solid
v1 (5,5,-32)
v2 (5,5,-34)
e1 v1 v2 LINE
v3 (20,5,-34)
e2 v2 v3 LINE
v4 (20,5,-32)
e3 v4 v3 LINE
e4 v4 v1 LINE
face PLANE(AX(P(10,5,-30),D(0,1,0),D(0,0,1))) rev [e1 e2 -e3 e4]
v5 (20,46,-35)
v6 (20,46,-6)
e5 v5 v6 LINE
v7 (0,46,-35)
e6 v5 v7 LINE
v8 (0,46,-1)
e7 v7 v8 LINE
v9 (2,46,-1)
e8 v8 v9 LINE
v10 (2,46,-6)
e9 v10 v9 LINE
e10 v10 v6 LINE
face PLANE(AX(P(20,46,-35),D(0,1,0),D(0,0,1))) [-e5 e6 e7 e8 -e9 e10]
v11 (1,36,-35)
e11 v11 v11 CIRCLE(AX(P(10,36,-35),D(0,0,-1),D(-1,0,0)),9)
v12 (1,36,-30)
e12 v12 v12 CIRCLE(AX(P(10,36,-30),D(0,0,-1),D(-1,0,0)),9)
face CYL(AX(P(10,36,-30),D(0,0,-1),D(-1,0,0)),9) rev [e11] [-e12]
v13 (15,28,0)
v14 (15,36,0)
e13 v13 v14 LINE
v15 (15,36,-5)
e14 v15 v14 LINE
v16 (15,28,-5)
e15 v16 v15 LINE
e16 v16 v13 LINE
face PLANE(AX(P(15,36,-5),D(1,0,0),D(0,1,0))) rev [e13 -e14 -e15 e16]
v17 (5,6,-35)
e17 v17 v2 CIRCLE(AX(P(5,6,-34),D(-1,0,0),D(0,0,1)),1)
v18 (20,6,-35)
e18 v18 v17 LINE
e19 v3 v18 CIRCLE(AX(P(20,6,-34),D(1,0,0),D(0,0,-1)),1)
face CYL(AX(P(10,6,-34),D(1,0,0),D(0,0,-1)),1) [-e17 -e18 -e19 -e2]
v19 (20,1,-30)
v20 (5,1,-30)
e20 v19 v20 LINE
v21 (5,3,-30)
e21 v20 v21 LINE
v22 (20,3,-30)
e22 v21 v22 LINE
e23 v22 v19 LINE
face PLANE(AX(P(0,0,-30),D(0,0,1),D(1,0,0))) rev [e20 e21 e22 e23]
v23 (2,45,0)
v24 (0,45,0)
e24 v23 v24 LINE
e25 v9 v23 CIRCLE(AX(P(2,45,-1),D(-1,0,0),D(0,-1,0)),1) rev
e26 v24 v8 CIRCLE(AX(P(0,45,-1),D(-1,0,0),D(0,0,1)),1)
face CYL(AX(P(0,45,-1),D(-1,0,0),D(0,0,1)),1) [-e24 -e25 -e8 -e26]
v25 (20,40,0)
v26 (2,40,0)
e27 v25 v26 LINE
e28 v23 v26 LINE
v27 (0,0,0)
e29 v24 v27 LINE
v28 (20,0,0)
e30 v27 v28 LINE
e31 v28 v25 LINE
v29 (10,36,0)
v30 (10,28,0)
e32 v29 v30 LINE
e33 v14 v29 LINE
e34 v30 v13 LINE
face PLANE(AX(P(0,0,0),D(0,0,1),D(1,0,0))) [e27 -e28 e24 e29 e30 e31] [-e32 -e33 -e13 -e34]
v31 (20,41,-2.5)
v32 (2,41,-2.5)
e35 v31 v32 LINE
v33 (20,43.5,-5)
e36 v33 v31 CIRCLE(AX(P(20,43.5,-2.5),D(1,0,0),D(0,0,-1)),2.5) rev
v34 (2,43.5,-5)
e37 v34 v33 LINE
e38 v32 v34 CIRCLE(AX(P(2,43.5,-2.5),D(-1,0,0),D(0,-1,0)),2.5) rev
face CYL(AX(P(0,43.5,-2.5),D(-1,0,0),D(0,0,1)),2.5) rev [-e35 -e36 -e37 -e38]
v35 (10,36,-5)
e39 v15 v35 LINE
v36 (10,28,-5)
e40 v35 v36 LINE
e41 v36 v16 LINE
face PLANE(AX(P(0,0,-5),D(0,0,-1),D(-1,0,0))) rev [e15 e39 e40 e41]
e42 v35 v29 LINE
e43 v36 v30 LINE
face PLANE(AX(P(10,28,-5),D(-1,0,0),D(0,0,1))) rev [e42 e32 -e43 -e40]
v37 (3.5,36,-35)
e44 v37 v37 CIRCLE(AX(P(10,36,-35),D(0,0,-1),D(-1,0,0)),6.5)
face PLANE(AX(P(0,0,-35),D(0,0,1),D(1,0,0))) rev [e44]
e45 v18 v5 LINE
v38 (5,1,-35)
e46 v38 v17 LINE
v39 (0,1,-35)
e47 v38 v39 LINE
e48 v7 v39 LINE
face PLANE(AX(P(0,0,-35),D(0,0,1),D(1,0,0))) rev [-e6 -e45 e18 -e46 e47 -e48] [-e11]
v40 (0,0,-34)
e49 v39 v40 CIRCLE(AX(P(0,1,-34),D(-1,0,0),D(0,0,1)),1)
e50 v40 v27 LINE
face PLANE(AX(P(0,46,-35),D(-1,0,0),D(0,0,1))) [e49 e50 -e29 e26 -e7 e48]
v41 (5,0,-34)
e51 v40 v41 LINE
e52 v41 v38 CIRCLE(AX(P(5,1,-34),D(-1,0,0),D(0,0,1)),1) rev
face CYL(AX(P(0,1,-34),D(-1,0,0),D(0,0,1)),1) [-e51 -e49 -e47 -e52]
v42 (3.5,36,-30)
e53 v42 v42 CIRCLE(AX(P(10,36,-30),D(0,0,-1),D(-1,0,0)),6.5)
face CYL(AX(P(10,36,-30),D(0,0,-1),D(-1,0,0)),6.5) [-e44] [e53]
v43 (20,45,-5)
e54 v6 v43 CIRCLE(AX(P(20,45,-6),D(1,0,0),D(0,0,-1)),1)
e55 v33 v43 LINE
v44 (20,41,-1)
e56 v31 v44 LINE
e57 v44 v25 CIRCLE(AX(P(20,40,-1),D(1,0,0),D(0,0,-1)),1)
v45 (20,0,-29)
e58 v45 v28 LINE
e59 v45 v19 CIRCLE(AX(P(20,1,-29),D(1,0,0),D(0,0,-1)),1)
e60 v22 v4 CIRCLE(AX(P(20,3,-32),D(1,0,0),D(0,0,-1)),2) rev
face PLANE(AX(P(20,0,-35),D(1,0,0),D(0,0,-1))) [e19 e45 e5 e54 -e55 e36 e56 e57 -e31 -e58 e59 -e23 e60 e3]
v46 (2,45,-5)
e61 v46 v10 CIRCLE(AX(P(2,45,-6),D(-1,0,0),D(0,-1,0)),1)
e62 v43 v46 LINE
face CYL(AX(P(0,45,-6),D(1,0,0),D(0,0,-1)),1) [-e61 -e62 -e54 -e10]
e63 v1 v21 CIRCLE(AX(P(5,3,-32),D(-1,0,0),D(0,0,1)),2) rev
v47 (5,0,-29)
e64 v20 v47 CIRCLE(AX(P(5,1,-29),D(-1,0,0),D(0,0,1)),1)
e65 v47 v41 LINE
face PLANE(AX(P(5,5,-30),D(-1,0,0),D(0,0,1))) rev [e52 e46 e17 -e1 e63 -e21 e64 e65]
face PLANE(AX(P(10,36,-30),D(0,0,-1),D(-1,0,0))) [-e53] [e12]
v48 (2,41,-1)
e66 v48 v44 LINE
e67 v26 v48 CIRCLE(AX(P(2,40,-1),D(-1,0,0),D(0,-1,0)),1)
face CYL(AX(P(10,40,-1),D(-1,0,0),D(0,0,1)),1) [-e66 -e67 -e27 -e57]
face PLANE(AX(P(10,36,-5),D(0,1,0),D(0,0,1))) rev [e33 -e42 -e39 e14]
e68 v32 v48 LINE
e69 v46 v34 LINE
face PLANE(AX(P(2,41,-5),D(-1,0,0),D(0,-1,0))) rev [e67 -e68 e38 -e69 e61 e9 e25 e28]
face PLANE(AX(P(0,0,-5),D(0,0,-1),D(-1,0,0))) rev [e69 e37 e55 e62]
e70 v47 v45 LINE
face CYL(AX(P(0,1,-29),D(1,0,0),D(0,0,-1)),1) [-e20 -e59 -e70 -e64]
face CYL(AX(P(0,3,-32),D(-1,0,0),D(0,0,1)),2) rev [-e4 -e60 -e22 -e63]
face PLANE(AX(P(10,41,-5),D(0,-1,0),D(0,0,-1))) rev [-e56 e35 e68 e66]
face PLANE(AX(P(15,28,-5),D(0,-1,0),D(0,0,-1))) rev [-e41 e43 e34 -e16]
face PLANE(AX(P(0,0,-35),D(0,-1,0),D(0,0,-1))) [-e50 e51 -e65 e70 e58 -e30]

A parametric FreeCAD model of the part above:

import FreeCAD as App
import Part
import Sketcher

V = App.Vector
Q = App.Units.Quantity


def edges_at(feature, points):
    """Names of the edges that pass closest to the given points."""
    edges = feature.Shape.Edges
    near = lambda p: min(range(len(edges)), key=lambda i: edges[i].distToShape(Part.Vertex(*p))[0])
    return sorted({f"Edge{near(p) + 1}" for p in points})

doc = App.newDocument("Part")
params = doc.addObject("Spreadsheet::Sheet", "Params")
for row, (alias, value) in enumerate([
    ("sketch1_width", "20 mm"),
    ("sketch1_height", "46 mm"),
    ("pad1_length", "35 mm"),
    ("sketch2_width", "18 mm"),
    ("sketch2_width2", "5 mm"),
    ("sketch2_height", "8 mm"),
    ("pocket1_length", "5 mm"),
    ("fillet_radius", "2.5 mm"),
    ("fillet2_radius", "1 mm"),
    ("fillet3_radius", "1 mm"),
    ("sketch3_diameter", "18 mm"),
    ("sketch3_diameter2", "13 mm"),
    ("sketch3_width", "15 mm"),
    ("sketch3_height", "5 mm"),
    ("pocket2_length", "5 mm"),
    ("fillet4_radius", "2 mm"),
    ("fillet5_radius", "1 mm"),
], start=1):
    params.set(f"A{row}", alias)
    params.set(f"B{row}", "=" + value)
    params.setAlias(f"B{row}", alias)

body = doc.addObject("PartDesign::Body", "Body")

# Sketch on XY plane
sketch1 = body.newObject("Sketcher::SketchObject", "Sketch")
sketch1.AttachmentSupport = (doc.getObject("XY_Plane"), [""])
sketch1.MapMode = "FlatFace"
sketch1.addGeometry([
    Part.LineSegment(V(0, 46, 0), V(0, 0, 0)),
    Part.LineSegment(V(0, 0, 0), V(20, 0, 0)),
    Part.LineSegment(V(20, 0, 0), V(20, 46, 0)),
    Part.LineSegment(V(20, 46, 0), V(0, 46, 0)),
], False)
sketch1.addConstraint([
    Sketcher.Constraint("Coincident", 0, 2, 1, 1),
    Sketcher.Constraint("Coincident", 1, 2, 2, 1),
    Sketcher.Constraint("Coincident", 2, 2, 3, 1),
    Sketcher.Constraint("Coincident", 3, 2, 0, 1),
    Sketcher.Constraint("Vertical", 0),
    Sketcher.Constraint("Horizontal", 1),
    Sketcher.Constraint("Vertical", 2),
    Sketcher.Constraint("Horizontal", 3),
    Sketcher.Constraint("Coincident", 0, 2, -1, 1),
    Sketcher.Constraint("DistanceX", 1, 1, 1, 2, Q("20 mm")),
    Sketcher.Constraint("DistanceY", 0, 2, 0, 1, Q("46 mm")),
])
sketch1.setExpression("Constraints[9]", "Params.sketch1_width")
sketch1.setExpression("Constraints[10]", "Params.sketch1_height")
pad1 = body.newObject("PartDesign::Pad", "Pad")
pad1.Profile = sketch1
pad1.setExpression("Length", "Params.pad1_length")
pad1.Reversed = True

# Sketch on XY plane
sketch2 = body.newObject("Sketcher::SketchObject", "Sketch001")
sketch2.AttachmentSupport = (doc.getObject("XY_Plane"), [""])
sketch2.MapMode = "FlatFace"
sketch2.addGeometry([
    Part.LineSegment(V(2, 41, 0), V(20, 41, 0)),  # 0
    Part.LineSegment(V(20, 41, 0), V(20, 46, 0)),  # 1
    Part.LineSegment(V(20, 46, 0), V(2, 46, 0)),  # 2
    Part.LineSegment(V(2, 46, 0), V(2, 41, 0)),  # 3
    Part.LineSegment(V(10, 36, 0), V(10, 28, 0)),  # 4
    Part.LineSegment(V(10, 28, 0), V(15, 28, 0)),  # 5
    Part.LineSegment(V(15, 28, 0), V(15, 36, 0)),  # 6
    Part.LineSegment(V(15, 36, 0), V(10, 36, 0)),  # 7
], False)
sketch2.addConstraint([
    Sketcher.Constraint("Coincident", 0, 2, 1, 1),
    Sketcher.Constraint("Coincident", 1, 2, 2, 1),
    Sketcher.Constraint("Coincident", 2, 2, 3, 1),
    Sketcher.Constraint("Coincident", 3, 2, 0, 1),
    Sketcher.Constraint("Coincident", 4, 2, 5, 1),
    Sketcher.Constraint("Coincident", 5, 2, 6, 1),
    Sketcher.Constraint("Coincident", 6, 2, 7, 1),
    Sketcher.Constraint("Coincident", 7, 2, 4, 1),
    Sketcher.Constraint("Horizontal", 0),
    Sketcher.Constraint("Vertical", 1),
    Sketcher.Constraint("Horizontal", 2),
    Sketcher.Constraint("Vertical", 3),
    Sketcher.Constraint("Vertical", 4),
    Sketcher.Constraint("Horizontal", 5),
    Sketcher.Constraint("Vertical", 6),
    Sketcher.Constraint("Horizontal", 7),
    Sketcher.Constraint("Equal", 7, 1),
    Sketcher.Constraint("DistanceX", 0, 1, 0, 2, Q("18 mm")),
    Sketcher.Constraint("DistanceX", 5, 1, 5, 2, Q("5 mm")),
    Sketcher.Constraint("DistanceY", 4, 2, 4, 1, Q("8 mm")),
    Sketcher.Constraint("DistanceX", -1, 1, 0, 2, Q("20 mm")),
    Sketcher.Constraint("DistanceY", -1, 1, 0, 2, Q("41 mm")),
    Sketcher.Constraint("DistanceX", -1, 1, 4, 2, Q("10 mm")),
    Sketcher.Constraint("DistanceY", -1, 1, 4, 2, Q("28 mm")),
])
sketch2.setExpression("Constraints[17]", "Params.sketch2_width")
sketch2.setExpression("Constraints[18]", "Params.sketch2_width2")
sketch2.setExpression("Constraints[19]", "Params.sketch2_height")
pocket1 = body.newObject("PartDesign::Pocket", "Pocket")
pocket1.Profile = sketch2
pocket1.setExpression("Length", "Params.pocket1_length")
doc.recompute()

fillet = body.newObject("PartDesign::Fillet", "Fillet")
fillet.Base = (pocket1, edges_at(pocket1, [(11, 41, -5)]))
fillet.setExpression("Radius", "Params.fillet_radius")
doc.recompute()

fillet2 = body.newObject("PartDesign::Fillet", "Fillet001")
fillet2.Base = (fillet, edges_at(fillet, [(1, 46, 0)]))
fillet2.setExpression("Radius", "Params.fillet2_radius")
doc.recompute()

fillet3 = body.newObject("PartDesign::Fillet", "Fillet002")
fillet3.Base = (fillet2, edges_at(fillet2, [(11, 46, -5), (11, 41, 0)]))
fillet3.setExpression("Radius", "Params.fillet3_radius")

# Sketch on XY plane
sketch3 = body.newObject("Sketcher::SketchObject", "Sketch002")
sketch3.AttachmentSupport = (doc.getObject("XY_Plane"), [""])
sketch3.MapMode = "FlatFace"
sketch3.AttachmentOffset = App.Placement(V(0, 0, -35), App.Rotation())
sketch3.addGeometry([
    Part.Circle(V(10, 36, 0), V(0, 0, 1), 9),  # 0
    Part.Circle(V(10, 36, 0), V(0, 0, 1), 6.5),  # 1
    Part.LineSegment(V(20, 5, 0), V(20, 0, 0)),  # 2
    Part.LineSegment(V(20, 0, 0), V(5, 0, 0)),  # 3
    Part.LineSegment(V(5, 0, 0), V(5, 5, 0)),  # 4
    Part.LineSegment(V(5, 5, 0), V(20, 5, 0)),  # 5
], False)
sketch3.addConstraint([
    Sketcher.Constraint("Coincident", 2, 2, 3, 1),
    Sketcher.Constraint("Coincident", 3, 2, 4, 1),
    Sketcher.Constraint("Coincident", 4, 2, 5, 1),
    Sketcher.Constraint("Coincident", 5, 2, 2, 1),
    Sketcher.Constraint("Vertical", 2),
    Sketcher.Constraint("Horizontal", 3),
    Sketcher.Constraint("Vertical", 4),
    Sketcher.Constraint("Horizontal", 5),
    Sketcher.Constraint("Coincident", 1, 3, 0, 3),
    Sketcher.Constraint("PointOnObject", 2, 2, -1),
    Sketcher.Constraint("Diameter", 0, Q("18 mm")),
    Sketcher.Constraint("Diameter", 1, Q("13 mm")),
    Sketcher.Constraint("DistanceX", 3, 2, 3, 1, Q("15 mm")),
    Sketcher.Constraint("DistanceY", 2, 2, 2, 1, Q("5 mm")),
    Sketcher.Constraint("DistanceX", -1, 1, 0, 3, Q("10 mm")),
    Sketcher.Constraint("DistanceY", -1, 1, 0, 3, Q("36 mm")),
    Sketcher.Constraint("DistanceX", -1, 1, 2, 2, Q("20 mm")),
])
sketch3.setExpression("Constraints[10]", "Params.sketch3_diameter")
sketch3.setExpression("Constraints[11]", "Params.sketch3_diameter2")
sketch3.setExpression("Constraints[12]", "Params.sketch3_width")
sketch3.setExpression("Constraints[13]", "Params.sketch3_height")
pocket2 = body.newObject("PartDesign::Pocket", "Pocket001")
pocket2.Profile = sketch3
pocket2.setExpression("Length", "Params.pocket2_length")
pocket2.Reversed = True
doc.recompute()

fillet4 = body.newObject("PartDesign::Fillet", "Fillet003")
fillet4.Base = (pocket2, edges_at(pocket2, [(12.5, 5, -30)]))
fillet4.setExpression("Radius", "Params.fillet4_radius")
doc.recompute()

fillet5 = body.newObject("PartDesign::Fillet", "Fillet004")
fillet5.Base = (fillet4, edges_at(fillet4, [(12.5, 0, -30), (12.5, 5, -35), (2.5, 0, -35)]))
fillet5.setExpression("Radius", "Params.fillet5_radius")

doc.recompute()
